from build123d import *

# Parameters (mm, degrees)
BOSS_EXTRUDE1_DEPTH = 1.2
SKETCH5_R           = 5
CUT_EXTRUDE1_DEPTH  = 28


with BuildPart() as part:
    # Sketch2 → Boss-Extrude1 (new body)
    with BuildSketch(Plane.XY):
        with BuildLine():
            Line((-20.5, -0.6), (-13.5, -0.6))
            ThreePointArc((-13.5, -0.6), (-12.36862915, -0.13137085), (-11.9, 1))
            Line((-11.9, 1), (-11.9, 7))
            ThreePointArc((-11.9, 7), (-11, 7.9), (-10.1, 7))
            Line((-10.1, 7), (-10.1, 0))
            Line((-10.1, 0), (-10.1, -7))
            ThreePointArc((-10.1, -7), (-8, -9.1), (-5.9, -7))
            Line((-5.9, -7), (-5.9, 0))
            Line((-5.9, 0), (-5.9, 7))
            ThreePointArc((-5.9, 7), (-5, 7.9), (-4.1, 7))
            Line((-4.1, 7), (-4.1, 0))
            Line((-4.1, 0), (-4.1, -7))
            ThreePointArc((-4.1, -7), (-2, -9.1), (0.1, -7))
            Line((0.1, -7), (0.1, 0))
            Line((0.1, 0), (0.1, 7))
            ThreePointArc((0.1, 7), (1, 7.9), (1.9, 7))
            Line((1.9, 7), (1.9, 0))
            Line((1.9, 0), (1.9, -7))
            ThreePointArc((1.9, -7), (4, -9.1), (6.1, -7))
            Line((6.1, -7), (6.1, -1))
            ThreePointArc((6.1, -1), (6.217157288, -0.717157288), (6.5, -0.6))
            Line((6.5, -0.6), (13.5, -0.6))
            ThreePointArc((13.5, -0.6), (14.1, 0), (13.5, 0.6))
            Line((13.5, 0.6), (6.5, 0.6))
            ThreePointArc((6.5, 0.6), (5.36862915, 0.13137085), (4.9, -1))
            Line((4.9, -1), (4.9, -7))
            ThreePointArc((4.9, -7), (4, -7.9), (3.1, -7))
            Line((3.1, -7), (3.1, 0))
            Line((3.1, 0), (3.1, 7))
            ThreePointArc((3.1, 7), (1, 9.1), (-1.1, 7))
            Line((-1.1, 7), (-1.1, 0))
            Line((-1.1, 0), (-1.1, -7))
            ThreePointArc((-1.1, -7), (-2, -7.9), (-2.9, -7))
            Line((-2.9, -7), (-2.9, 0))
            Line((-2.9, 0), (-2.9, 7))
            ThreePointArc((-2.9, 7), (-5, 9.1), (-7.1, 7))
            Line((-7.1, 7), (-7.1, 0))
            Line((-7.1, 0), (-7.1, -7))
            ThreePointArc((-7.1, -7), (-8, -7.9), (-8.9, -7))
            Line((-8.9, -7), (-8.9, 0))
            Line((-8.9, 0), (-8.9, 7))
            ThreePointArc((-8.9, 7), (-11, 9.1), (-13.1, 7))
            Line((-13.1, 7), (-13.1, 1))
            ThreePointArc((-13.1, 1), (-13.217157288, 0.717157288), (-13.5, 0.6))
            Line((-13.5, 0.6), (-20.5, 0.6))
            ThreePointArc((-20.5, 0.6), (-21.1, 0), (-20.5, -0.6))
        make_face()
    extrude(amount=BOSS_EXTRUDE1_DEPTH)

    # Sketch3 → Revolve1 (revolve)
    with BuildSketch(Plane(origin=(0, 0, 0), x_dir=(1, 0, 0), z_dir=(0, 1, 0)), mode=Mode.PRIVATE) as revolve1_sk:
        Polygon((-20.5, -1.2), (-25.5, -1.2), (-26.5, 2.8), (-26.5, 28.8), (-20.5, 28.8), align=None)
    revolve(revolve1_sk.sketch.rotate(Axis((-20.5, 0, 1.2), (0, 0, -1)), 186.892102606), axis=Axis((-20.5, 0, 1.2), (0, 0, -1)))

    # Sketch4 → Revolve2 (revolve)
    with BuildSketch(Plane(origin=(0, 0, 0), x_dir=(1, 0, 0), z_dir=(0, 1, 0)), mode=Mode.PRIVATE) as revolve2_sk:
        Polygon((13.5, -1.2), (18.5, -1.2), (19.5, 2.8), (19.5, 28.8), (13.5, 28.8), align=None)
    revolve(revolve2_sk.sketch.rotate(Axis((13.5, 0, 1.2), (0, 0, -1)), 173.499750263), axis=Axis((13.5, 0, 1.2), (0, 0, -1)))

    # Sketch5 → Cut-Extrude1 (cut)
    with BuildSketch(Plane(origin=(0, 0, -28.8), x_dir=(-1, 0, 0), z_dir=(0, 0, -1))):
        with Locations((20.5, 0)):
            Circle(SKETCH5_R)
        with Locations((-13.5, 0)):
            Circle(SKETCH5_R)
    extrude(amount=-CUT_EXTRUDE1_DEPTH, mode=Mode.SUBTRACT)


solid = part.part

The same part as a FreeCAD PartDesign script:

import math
import FreeCAD as App
import Part
import Sketcher

V = App.Vector
Q = App.Units.Quantity


def add_polygon(sketch, points):
    """Adds a closed chain of lines whose ends are joined by coincident constraints."""
    first, n = sketch.GeometryCount, len(points)
    for a, b in zip(points, points[1:] + points[:1]):
        sketch.addGeometry(Part.LineSegment(App.Vector(*a, 0), App.Vector(*b, 0)), False)
    for i in range(n):
        sketch.addConstraint(Sketcher.Constraint("Coincident", first + i, 2, first + (i + 1) % n, 1))

doc = App.newDocument("Part")
body = doc.addObject("PartDesign::Body", "Body")

# Sketch on XY plane
sketch1 = body.newObject("Sketcher::SketchObject", "Sketch")
sketch1.AttachmentSupport = (doc.getObject("XY_Plane"), [""])
sketch1.MapMode = "FlatFace"
sketch1.addGeometry([
    Part.LineSegment(V(-20.5, -0.6, 0), V(-13.5, -0.6, 0)),  # 0
    Part.ArcOfCircle(Part.Circle(V(-13.5, 1, 0), V(0, 0, 1), 1.6), math.radians(-90), math.radians(0)),  # 1
    Part.LineSegment(V(-11.9, 1, 0), V(-11.9, 7, 0)),  # 2
    Part.ArcOfCircle(Part.Circle(V(-11, 7, 0), V(0, 0, 1), 0.9), math.radians(0), math.radians(180)),  # 3
    Part.LineSegment(V(-10.1, 7, 0), V(-10.1, -7, 0)),  # 4
    Part.ArcOfCircle(Part.Circle(V(-8, -7, 0), V(0, 0, 1), 2.1), math.radians(180), math.radians(360)),  # 5
    Part.LineSegment(V(-5.9, -7, 0), V(-5.9, 7, 0)),  # 6
    Part.ArcOfCircle(Part.Circle(V(-5, 7, 0), V(0, 0, 1), 0.9), math.radians(0), math.radians(180)),  # 7
    Part.LineSegment(V(-4.1, 7, 0), V(-4.1, -7, 0)),  # 8
    Part.ArcOfCircle(Part.Circle(V(-2, -7, 0), V(0, 0, 1), 2.1), math.radians(180), math.radians(360)),  # 9
    Part.LineSegment(V(0.1, -7, 0), V(0.1, 7, 0)),  # 10
    Part.ArcOfCircle(Part.Circle(V(1, 7, 0), V(0, 0, 1), 0.9), math.radians(0), math.radians(180)),  # 11
    Part.LineSegment(V(1.9, 7, 0), V(1.9, -7, 0)),  # 12
    Part.ArcOfCircle(Part.Circle(V(4, -7, 0), V(0, 0, 1), 2.1), math.radians(180), math.radians(360)),  # 13
    Part.LineSegment(V(6.1, -7, 0), V(6.1, -1, 0)),  # 14
    Part.ArcOfCircle(Part.Circle(V(6.5, -1, 0), V(0, 0, 1), 0.4), math.radians(90), math.radians(180)),  # 15
    Part.LineSegment(V(6.5, -0.6, 0), V(13.5, -0.6, 0)),  # 16
    Part.ArcOfCircle(Part.Circle(V(13.5, 0, 0), V(0, 0, 1), 0.6), math.radians(-90), math.radians(90)),  # 17
    Part.LineSegment(V(13.5, 0.6, 0), V(6.5, 0.6, 0)),  # 18
    Part.ArcOfCircle(Part.Circle(V(6.5, -1, 0), V(0, 0, 1), 1.6), math.radians(90), math.radians(180)),  # 19
    Part.LineSegment(V(4.9, -1, 0), V(4.9, -7, 0)),  # 20
    Part.ArcOfCircle(Part.Circle(V(4, -7, 0), V(0, 0, 1), 0.9), math.radians(180), math.radians(360)),  # 21
    Part.LineSegment(V(3.1, -7, 0), V(3.1, 7, 0)),  # 22
    Part.ArcOfCircle(Part.Circle(V(1, 7, 0), V(0, 0, 1), 2.1), math.radians(0), math.radians(180)),  # 23
    Part.LineSegment(V(-1.1, 7, 0), V(-1.1, -7, 0)),  # 24
    Part.ArcOfCircle(Part.Circle(V(-2, -7, 0), V(0, 0, 1), 0.9), math.radians(180), math.radians(360)),  # 25
    Part.LineSegment(V(-2.9, -7, 0), V(-2.9, 7, 0)),  # 26
    Part.ArcOfCircle(Part.Circle(V(-5, 7, 0), V(0, 0, 1), 2.1), math.radians(0), math.radians(180)),  # 27
    Part.LineSegment(V(-7.1, 7, 0), V(-7.1, -7, 0)),  # 28
    Part.ArcOfCircle(Part.Circle(V(-8, -7, 0), V(0, 0, 1), 0.9), math.radians(180), math.radians(360)),  # 29
    Part.LineSegment(V(-8.9, -7, 0), V(-8.9, 7, 0)),  # 30
    Part.ArcOfCircle(Part.Circle(V(-11, 7, 0), V(0, 0, 1), 2.1), math.radians(0), math.radians(180)),  # 31
    Part.LineSegment(V(-13.1, 7, 0), V(-13.1, 1, 0)),  # 32
    Part.ArcOfCircle(Part.Circle(V(-13.5, 1, 0), V(0, 0, 1), 0.4), math.radians(-90), math.radians(0)),  # 33
    Part.LineSegment(V(-13.5, 0.6, 0), V(-20.5, 0.6, 0)),  # 34
    Part.ArcOfCircle(Part.Circle(V(-20.5, 0, 0), V(0, 0, 1), 0.6), math.radians(90), math.radians(270)),  # 35
], False)
sketch1.addConstraint([
    Sketcher.Constraint("Tangent", 0, 2, 1, 1),
    Sketcher.Constraint("Tangent", 1, 2, 2, 1),
    Sketcher.Constraint("Tangent", 2, 2, 3, 2),
    Sketcher.Constraint("Tangent", 3, 1, 4, 1),
    Sketcher.Constraint("Tangent", 4, 2, 5, 1),
    Sketcher.Constraint("Tangent", 5, 2, 6, 1),
    Sketcher.Constraint("Tangent", 6, 2, 7, 2),
    Sketcher.Constraint("Tangent", 7, 1, 8, 1),
    Sketcher.Constraint("Tangent", 8, 2, 9, 1),
    Sketcher.Constraint("Tangent", 9, 2, 10, 1),
    Sketcher.Constraint("Tangent", 10, 2, 11, 2),
    Sketcher.Constraint("Tangent", 11, 1, 12, 1),
    Sketcher.Constraint("Tangent", 12, 2, 13, 1),
    Sketcher.Constraint("Tangent", 13, 2, 14, 1),
    Sketcher.Constraint("Tangent", 14, 2, 15, 2),
    Sketcher.Constraint("Tangent", 15, 1, 16, 1),
    Sketcher.Constraint("Tangent", 16, 2, 17, 1),
    Sketcher.Constraint("Tangent", 17, 2, 18, 1),
    Sketcher.Constraint("Tangent", 18, 2, 19, 1),
    Sketcher.Constraint("Tangent", 19, 2, 20, 1),
    Sketcher.Constraint("Tangent", 20, 2, 21, 2),
    Sketcher.Constraint("Tangent", 21, 1, 22, 1),
    Sketcher.Constraint("Tangent", 22, 2, 23, 1),
    Sketcher.Constraint("Tangent", 23, 2, 24, 1),
    Sketcher.Constraint("Tangent", 24, 2, 25, 2),
    Sketcher.Constraint("Tangent", 25, 1, 26, 1),
    Sketcher.Constraint("Tangent", 26, 2, 27, 1),
    Sketcher.Constraint("Tangent", 27, 2, 28, 1),
    Sketcher.Constraint("Tangent", 28, 2, 29, 2),
    Sketcher.Constraint("Tangent", 29, 1, 30, 1),
    Sketcher.Constraint("Tangent", 30, 2, 31, 1),
    Sketcher.Constraint("Tangent", 31, 2, 32, 1),
    Sketcher.Constraint("Tangent", 32, 2, 33, 2),
    Sketcher.Constraint("Tangent", 33, 1, 34, 1),
    Sketcher.Constraint("Tangent", 34, 2, 35, 1),
    Sketcher.Constraint("Tangent", 35, 2, 0, 1),
    Sketcher.Constraint("Horizontal", 0),
    Sketcher.Constraint("Vertical", 2),
    Sketcher.Constraint("Vertical", 4),
    Sketcher.Constraint("Vertical", 6),
    Sketcher.Constraint("Vertical", 8),
    Sketcher.Constraint("Vertical", 10),
    Sketcher.Constraint("Vertical", 12),
    Sketcher.Constraint("Vertical", 14),
    Sketcher.Constraint("Horizontal", 16),
    Sketcher.Constraint("Horizontal", 18),
    Sketcher.Constraint("Vertical", 20),
    Sketcher.Constraint("Vertical", 22),
    Sketcher.Constraint("Vertical", 24),
    Sketcher.Constraint("Vertical", 26),
    Sketcher.Constraint("Vertical", 28),
    Sketcher.Constraint("Vertical", 30),
    Sketcher.Constraint("Vertical", 32),
    Sketcher.Constraint("Horizontal", 34),
    Sketcher.Constraint("Coincident", 19, 3, 15, 3),
    Sketcher.Constraint("Coincident", 21, 3, 13, 3),
    Sketcher.Constraint("Coincident", 23, 3, 11, 3),
    Sketcher.Constraint("Coincident", 25, 3, 9, 3),
    Sketcher.Constraint("Coincident", 27, 3, 7, 3),
    Sketcher.Constraint("Coincident", 29, 3, 5, 3),
    Sketcher.Constraint("Coincident", 31, 3, 3, 3),
    Sketcher.Constraint("Coincident", 33, 3, 1, 3),
    Sketcher.Constraint("Equal", 3, 7),
    Sketcher.Constraint("Equal", 5, 9),
    Sketcher.Constraint("Equal", 7, 11),
    Sketcher.Constraint("Equal", 9, 13),
    Sketcher.Constraint("Equal", 1, 19),
    Sketcher.Constraint("Equal", 11, 21),
    Sketcher.Constraint("Symmetric", 0, 2, 17, 2, -1, 1),
    Sketcher.Constraint("PointOnObject", 17, 3, -1),
    Sketcher.Constraint("Horizontal", 3, 3, 7, 3),
    Sketcher.Constraint("Horizontal", 5, 3, 9, 3),
    Sketcher.Constraint("Horizontal", 7, 3, 11, 3),
    Sketcher.Constraint("Horizontal", 9, 3, 13, 3),
    Sketcher.Constraint("Equal", 0, 16),
    Sketcher.Constraint("Equal", 2, 14),
    Sketcher.Constraint("Radius", 1, Q("1.6 mm")),
    Sketcher.Constraint("Radius", 3, Q("0.9 mm")),
    Sketcher.Constraint("Radius", 5, Q("2.1 mm")),
    Sketcher.Constraint("DistanceX", 0, 1, 0, 2, Q("7 mm")),
    Sketcher.Constraint("DistanceY", 2, 1, 2, 2, Q("6 mm")),
])
pad1 = body.newObject("PartDesign::Pad", "Pad")
pad1.Profile = sketch1
pad1.Length = 1.2

# Sketch on XZ plane
sketch2 = body.newObject("Sketcher::SketchObject", "Sketch001")
sketch2.AttachmentSupport = (doc.getObject("XZ_Plane"), [""])
sketch2.MapMode = "FlatFace"
add_polygon(sketch2, [(-25.5, 1.2), (-20.5, 1.2), (-20.5, -28.8), (-26.5, -28.8), (-26.5, -2.8)])  # lines 0-4
sketch2.addGeometry(Part.LineSegment(V(-20.5, 1.2, 0), V(-20.5, -28.8, 0)), True)  # axis
sketch2.addConstraint([
    Sketcher.Constraint("Horizontal", 0),
    Sketcher.Constraint("Vertical", 1),
    Sketcher.Constraint("Horizontal", 2),
    Sketcher.Constraint("Vertical", 3),
    Sketcher.Constraint("Vertical", 5),
    Sketcher.Constraint("Coincident", 5, 1, 0, 2),
    Sketcher.Constraint("Horizontal", 2, 2, 5, 2),
    Sketcher.Constraint("DistanceX", 0, 1, 0, 2, Q("5 mm")),
    Sketcher.Constraint("DistanceX", 2, 2, 2, 1, Q("6 mm")),
    Sketcher.Constraint("DistanceY", 1, 2, 1, 1, Q("30 mm")),
    Sketcher.Constraint("DistanceY", 3, 1, 3, 2, Q("26 mm")),
    Sketcher.Constraint("DistanceX", 0, 2, -1, 1, Q("20.5 mm")),
    Sketcher.Constraint("DistanceY", -1, 1, 0, 2, Q("1.2 mm")),
])
revolution = body.newObject("PartDesign::Revolution", "Revolution")
revolution.Profile = sketch2
revolution.ReferenceAxis = (sketch2, ["Axis0"])
revolution.Angle = 360

# Sketch on XZ plane
sketch3 = body.newObject("Sketcher::SketchObject", "Sketch002")
sketch3.AttachmentSupport = (doc.getObject("XZ_Plane"), [""])
sketch3.MapMode = "FlatFace"
add_polygon(sketch3, [(13.5, 1.2), (18.5, 1.2), (19.5, -2.8), (19.5, -28.8), (13.5, -28.8)])  # lines 0-4
sketch3.addGeometry(Part.LineSegment(V(13.5, 1.2, 0), V(13.5, -28.8, 0)), True)  # axis
sketch3.addConstraint([
    Sketcher.Constraint("Horizontal", 0),
    Sketcher.Constraint("Vertical", 2),
    Sketcher.Constraint("Horizontal", 3),
    Sketcher.Constraint("Vertical", 4),
    Sketcher.Constraint("Vertical", 5),
    Sketcher.Constraint("Coincident", 5, 1, 4, 2),
    Sketcher.Constraint("Horizontal", 2, 2, 5, 2),
    Sketcher.Constraint("DistanceX", 0, 1, 0, 2, Q("5 mm")),
    Sketcher.Constraint("DistanceX", 3, 2, 3, 1, Q("6 mm")),
    Sketcher.Constraint("DistanceY", 2, 2, 2, 1, Q("26 mm")),
    Sketcher.Constraint("DistanceY", 4, 1, 4, 2, Q("30 mm")),
    Sketcher.Constraint("DistanceX", -1, 1, 0, 2, Q("18.5 mm")),
    Sketcher.Constraint("DistanceY", -1, 1, 0, 2, Q("1.2 mm")),
])
revolution2 = body.newObject("PartDesign::Revolution", "Revolution001")
revolution2.Profile = sketch3
revolution2.ReferenceAxis = (sketch3, ["Axis0"])
revolution2.Angle = 360

# Sketch on XY plane
sketch4 = body.newObject("Sketcher::SketchObject", "Sketch003")
sketch4.AttachmentSupport = (doc.getObject("XY_Plane"), [""])
sketch4.MapMode = "FlatFace"
sketch4.AttachmentOffset = App.Placement(V(0, 0, -28.8), App.Rotation())
sketch4.addGeometry([
    Part.Circle(V(-20, 0, 0), V(0, 0, 1), 5),
    Part.Circle(V(14, 0, 0), V(0, 0, 1), 5),
], False)
sketch4.addConstraint([
    Sketcher.Constraint("Equal", 0, 1),
    Sketcher.Constraint("PointOnObject", 0, 3, -1),
    Sketcher.Constraint("PointOnObject", 1, 3, -1),
    Sketcher.Constraint("Diameter", 0, Q("10 mm")),
    Sketcher.Constraint("DistanceX", 0, 3, 1, 3, Q("34 mm")),
    Sketcher.Constraint("DistanceX", 0, 3, -1, 1, Q("20.5 mm")),
])
pocket1 = body.newObject("PartDesign::Pocket", "Pocket")
pocket1.Profile = sketch4
pocket1.Length = 28
pocket1.Reversed = True

doc.recompute()
